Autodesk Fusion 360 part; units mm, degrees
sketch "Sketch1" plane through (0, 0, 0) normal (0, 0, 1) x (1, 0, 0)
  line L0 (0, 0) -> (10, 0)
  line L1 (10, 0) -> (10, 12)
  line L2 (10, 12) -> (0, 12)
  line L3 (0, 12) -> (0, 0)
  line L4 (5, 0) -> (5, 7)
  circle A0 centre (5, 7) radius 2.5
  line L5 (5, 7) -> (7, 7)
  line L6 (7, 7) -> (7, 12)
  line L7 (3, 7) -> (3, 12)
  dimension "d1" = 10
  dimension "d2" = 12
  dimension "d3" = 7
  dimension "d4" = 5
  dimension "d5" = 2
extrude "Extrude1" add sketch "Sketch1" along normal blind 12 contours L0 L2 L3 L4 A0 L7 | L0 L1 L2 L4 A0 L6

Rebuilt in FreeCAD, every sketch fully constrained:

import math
import FreeCAD as App
import Part
import Sketcher

doc = App.newDocument("Part")
body = doc.addObject("PartDesign::Body", "Body")

# Sketch on XY plane
sketch1 = body.newObject("Sketcher::SketchObject", "Sketch")
sketch1.AttachmentSupport = (doc.getObject("XY_Plane"), [""])
sketch1.MapMode = "FlatFace"
sketch1.addGeometry(Part.LineSegment(App.Vector(0, 12, 0), App.Vector(0, 0, 0)), False)
sketch1.addGeometry(Part.LineSegment(App.Vector(0, 0, 0), App.Vector(10, 0, 0)), False)
sketch1.addGeometry(Part.LineSegment(App.Vector(10, 0, 0), App.Vector(10, 12, 0)), False)
sketch1.addGeometry(Part.LineSegment(App.Vector(10, 12, 0), App.Vector(7, 12, 0)), False)
sketch1.addGeometry(Part.LineSegment(App.Vector(7, 12, 0), App.Vector(7, 8.5, 0)), False)
sketch1.addGeometry(Part.ArcOfCircle(Part.Circle(App.Vector(5, 7, 0), App.Vector(0, 0, 1), 2.5), math.radians(143), math.radians(397)), False)
sketch1.addGeometry(Part.LineSegment(App.Vector(3, 8.5, 0), App.Vector(3, 12, 0)), False)
sketch1.addGeometry(Part.LineSegment(App.Vector(3, 12, 0), App.Vector(0, 12, 0)), False)
sketch1.addConstraint(Sketcher.Constraint("Coincident", 0, 2, 1, 1))
sketch1.addConstraint(Sketcher.Constraint("Coincident", 1, 2, 2, 1))
sketch1.addConstraint(Sketcher.Constraint("Coincident", 2, 2, 3, 1))
sketch1.addConstraint(Sketcher.Constraint("Coincident", 3, 2, 4, 1))
sketch1.addConstraint(Sketcher.Constraint("Coincident", 4, 2, 5, 2))
sketch1.addConstraint(Sketcher.Constraint("Coincident", 5, 1, 6, 1))
sketch1.addConstraint(Sketcher.Constraint("Coincident", 6, 2, 7, 1))
sketch1.addConstraint(Sketcher.Constraint("Coincident", 7, 2, 0, 1))
sketch1.addConstraint(Sketcher.Constraint("Vertical", 0))
sketch1.addConstraint(Sketcher.Constraint("Horizontal", 1))
sketch1.addConstraint(Sketcher.Constraint("Vertical", 2))
sketch1.addConstraint(Sketcher.Constraint("Horizontal", 3))
sketch1.addConstraint(Sketcher.Constraint("Vertical", 4))
sketch1.addConstraint(Sketcher.Constraint("Vertical", 6))
sketch1.addConstraint(Sketcher.Constraint("Horizontal", 7))
sketch1.addConstraint(Sketcher.Constraint("Coincident", 0, 2, -1, 1))
sketch1.addConstraint(Sketcher.Constraint("Horizontal", 4, 2, 5, 1))
sketch1.addConstraint(Sketcher.Constraint("Horizontal", 3, 2, 6, 2))
sketch1.addConstraint(Sketcher.Constraint("Equal", 3, 7))
sketch1.addConstraint(Sketcher.Constraint("Radius", 5, 2.5))
sketch1.addConstraint(Sketcher.Constraint("DistanceX", 1, 1, 1, 2, 10.0))
sketch1.addConstraint(Sketcher.Constraint("DistanceY", 0, 2, 0, 1, 12.0))
sketch1.addConstraint(Sketcher.Constraint("DistanceY", -1, 1, 5, 3, 7.0))
sketch1.addConstraint(Sketcher.Constraint("DistanceX", -1, 1, 3, 2, 7.0))
pad1 = body.newObject("PartDesign::Pad", "Pad")
pad1.Profile = sketch1
pad1.Length = 12

doc.recompute()
